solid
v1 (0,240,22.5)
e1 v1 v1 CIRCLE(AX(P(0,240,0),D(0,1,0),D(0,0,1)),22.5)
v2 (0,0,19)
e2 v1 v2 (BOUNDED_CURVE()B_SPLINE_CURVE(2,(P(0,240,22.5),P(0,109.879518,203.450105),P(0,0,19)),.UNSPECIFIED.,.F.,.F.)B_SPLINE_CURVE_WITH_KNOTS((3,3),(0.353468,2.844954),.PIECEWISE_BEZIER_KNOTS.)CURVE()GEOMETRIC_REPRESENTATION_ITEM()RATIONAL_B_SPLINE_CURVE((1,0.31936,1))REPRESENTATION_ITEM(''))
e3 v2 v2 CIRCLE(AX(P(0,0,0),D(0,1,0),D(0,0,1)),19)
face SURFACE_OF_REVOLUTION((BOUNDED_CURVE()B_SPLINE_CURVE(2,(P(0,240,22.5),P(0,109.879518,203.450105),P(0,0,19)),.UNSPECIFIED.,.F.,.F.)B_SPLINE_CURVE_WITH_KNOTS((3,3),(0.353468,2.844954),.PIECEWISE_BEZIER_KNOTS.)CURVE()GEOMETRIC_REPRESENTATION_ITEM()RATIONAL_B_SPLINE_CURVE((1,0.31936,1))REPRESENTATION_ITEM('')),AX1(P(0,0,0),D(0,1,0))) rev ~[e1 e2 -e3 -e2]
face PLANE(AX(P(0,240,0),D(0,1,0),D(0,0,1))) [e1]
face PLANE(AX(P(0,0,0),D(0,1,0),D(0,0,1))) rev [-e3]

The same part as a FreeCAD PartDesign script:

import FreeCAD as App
import Part
import Sketcher

doc = App.newDocument("Part")
body = doc.addObject("PartDesign::Body", "Body")

# Sketch on YZ plane
sketch1 = body.newObject("Sketcher::SketchObject", "Sketch")
sketch1.AttachmentSupport = (doc.getObject("YZ_Plane"), [""])
sketch1.MapMode = "FlatFace"
sketch1.addGeometry([
    Part.LineSegment(App.Vector(0, 19, 0), App.Vector(0, 0, 0)),
    Part.LineSegment(App.Vector(0, 0, 0), App.Vector(240, 0, 0)),
    Part.LineSegment(App.Vector(240, 0, 0), App.Vector(240, 22.5, 0)),
    Part.BSplineCurve([App.Vector(240, 22.5, 0), App.Vector(109.879518, 203.450105, 0), App.Vector(0, 19, 0)], [3, 3], [0.353468, 2.844954], False, 2, [1, 0.31936, 1], False),
], False)
sketch1.addConstraint([
    Sketcher.Constraint("Block", 3),
    Sketcher.Constraint("Coincident", 0, 2, 1, 1),
    Sketcher.Constraint("Coincident", 1, 2, 2, 1),
    Sketcher.Constraint("Coincident", 2, 2, 3, 1),
    Sketcher.Constraint("Coincident", 3, 2, 0, 1),
    Sketcher.Constraint("Vertical", 0),
    Sketcher.Constraint("Horizontal", 1),
    Sketcher.Constraint("Vertical", 2),
    Sketcher.Constraint("PointOnObject", 1, 2, -1),
])
revolution = body.newObject("PartDesign::Revolution", "Revolution")
revolution.Profile = sketch1
revolution.ReferenceAxis = (sketch1, ["H_Axis"])
revolution.Angle = 360

doc.recompute()
